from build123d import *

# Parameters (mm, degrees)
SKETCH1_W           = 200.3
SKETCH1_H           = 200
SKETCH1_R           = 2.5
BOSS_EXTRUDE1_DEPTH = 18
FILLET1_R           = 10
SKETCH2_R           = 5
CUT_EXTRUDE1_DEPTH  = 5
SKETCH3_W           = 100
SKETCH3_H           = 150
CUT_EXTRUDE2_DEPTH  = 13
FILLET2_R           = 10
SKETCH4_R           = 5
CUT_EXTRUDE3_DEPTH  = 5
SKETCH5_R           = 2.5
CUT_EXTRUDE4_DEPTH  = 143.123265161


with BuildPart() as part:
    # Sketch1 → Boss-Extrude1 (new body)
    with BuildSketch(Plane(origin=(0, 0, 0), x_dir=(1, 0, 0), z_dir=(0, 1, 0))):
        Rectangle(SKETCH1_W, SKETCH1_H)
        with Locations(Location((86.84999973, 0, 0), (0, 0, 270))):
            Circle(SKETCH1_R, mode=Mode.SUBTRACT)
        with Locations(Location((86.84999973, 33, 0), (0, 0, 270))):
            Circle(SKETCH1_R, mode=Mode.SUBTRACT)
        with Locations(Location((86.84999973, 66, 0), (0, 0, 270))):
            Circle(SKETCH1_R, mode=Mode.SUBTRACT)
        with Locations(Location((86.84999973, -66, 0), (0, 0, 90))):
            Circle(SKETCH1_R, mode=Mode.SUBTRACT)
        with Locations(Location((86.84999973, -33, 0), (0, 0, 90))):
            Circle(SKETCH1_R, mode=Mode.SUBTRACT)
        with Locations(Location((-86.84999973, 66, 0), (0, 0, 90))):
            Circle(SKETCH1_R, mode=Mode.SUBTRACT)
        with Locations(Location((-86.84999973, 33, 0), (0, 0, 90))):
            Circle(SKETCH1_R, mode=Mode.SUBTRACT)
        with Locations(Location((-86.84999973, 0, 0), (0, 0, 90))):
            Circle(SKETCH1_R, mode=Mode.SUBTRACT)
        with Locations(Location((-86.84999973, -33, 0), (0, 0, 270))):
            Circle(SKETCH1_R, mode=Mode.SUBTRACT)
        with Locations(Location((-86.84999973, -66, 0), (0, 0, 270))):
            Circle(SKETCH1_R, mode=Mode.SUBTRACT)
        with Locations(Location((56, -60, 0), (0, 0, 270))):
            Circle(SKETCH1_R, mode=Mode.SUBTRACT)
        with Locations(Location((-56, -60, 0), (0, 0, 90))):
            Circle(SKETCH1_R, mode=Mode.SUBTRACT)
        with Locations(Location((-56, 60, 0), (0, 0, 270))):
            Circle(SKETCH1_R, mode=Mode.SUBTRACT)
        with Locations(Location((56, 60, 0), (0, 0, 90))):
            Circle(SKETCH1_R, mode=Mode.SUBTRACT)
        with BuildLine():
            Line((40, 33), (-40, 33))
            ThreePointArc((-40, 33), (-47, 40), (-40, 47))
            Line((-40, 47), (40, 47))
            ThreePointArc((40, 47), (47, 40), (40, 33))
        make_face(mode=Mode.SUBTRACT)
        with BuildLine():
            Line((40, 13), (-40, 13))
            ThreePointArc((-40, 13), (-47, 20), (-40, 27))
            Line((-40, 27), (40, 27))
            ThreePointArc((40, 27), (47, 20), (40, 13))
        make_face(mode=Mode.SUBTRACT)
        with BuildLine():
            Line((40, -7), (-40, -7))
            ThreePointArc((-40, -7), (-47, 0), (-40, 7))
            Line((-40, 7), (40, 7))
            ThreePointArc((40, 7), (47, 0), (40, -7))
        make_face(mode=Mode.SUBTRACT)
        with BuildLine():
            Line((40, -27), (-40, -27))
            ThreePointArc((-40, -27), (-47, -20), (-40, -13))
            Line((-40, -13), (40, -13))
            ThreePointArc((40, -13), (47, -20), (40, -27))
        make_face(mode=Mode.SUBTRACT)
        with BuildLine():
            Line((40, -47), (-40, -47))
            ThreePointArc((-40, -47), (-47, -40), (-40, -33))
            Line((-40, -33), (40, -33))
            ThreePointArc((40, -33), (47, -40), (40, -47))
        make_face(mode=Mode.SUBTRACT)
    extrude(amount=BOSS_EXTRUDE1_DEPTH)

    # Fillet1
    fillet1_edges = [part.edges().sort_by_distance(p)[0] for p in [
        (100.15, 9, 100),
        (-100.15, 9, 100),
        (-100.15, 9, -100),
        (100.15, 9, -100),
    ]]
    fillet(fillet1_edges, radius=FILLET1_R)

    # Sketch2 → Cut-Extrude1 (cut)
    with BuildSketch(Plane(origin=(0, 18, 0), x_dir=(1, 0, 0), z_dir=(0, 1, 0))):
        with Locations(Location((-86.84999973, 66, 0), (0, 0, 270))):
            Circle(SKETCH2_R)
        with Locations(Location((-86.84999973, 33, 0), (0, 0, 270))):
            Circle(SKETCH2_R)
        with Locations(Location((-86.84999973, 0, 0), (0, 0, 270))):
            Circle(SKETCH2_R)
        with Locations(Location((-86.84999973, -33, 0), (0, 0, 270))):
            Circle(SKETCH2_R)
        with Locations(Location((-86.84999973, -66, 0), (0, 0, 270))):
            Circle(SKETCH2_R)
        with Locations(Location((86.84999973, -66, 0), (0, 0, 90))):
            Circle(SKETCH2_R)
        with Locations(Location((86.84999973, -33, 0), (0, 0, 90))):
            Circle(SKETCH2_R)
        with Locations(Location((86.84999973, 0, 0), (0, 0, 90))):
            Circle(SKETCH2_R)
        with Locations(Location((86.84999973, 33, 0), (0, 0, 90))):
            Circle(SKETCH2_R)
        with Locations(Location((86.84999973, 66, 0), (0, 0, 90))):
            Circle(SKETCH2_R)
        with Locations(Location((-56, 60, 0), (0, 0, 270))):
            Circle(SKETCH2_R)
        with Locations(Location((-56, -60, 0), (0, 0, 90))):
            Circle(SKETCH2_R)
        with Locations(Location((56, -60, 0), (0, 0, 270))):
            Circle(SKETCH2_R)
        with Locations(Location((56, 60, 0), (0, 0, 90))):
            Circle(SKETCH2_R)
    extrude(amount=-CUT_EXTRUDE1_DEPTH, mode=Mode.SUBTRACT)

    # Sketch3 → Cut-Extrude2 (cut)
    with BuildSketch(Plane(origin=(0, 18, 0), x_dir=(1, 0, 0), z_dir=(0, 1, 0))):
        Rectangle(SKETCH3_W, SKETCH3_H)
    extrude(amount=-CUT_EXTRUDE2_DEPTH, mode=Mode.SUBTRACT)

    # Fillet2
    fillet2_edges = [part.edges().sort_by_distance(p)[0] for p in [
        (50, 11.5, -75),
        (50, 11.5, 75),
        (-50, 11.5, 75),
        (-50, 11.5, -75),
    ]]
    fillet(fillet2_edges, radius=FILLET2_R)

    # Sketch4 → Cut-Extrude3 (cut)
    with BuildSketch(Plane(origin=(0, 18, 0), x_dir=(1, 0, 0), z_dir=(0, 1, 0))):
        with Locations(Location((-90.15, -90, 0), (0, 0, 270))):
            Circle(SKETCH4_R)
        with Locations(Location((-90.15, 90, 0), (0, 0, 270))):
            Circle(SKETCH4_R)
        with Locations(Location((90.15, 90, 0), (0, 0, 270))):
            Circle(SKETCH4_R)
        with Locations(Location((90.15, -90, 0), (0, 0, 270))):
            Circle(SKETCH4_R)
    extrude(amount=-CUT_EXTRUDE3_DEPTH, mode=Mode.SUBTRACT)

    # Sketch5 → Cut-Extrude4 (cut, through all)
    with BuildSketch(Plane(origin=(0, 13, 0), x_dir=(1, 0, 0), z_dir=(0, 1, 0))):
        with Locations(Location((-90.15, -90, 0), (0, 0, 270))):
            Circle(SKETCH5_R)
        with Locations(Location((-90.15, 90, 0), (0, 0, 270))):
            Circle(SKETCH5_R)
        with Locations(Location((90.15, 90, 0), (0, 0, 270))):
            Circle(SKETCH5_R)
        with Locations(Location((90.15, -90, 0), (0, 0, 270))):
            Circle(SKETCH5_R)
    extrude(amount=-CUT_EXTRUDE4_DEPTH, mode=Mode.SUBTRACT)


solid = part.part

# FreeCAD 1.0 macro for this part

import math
import FreeCAD as App
import Part
import Sketcher

V = App.Vector


def edges_at(feature, points):
    """Names of the edges that pass closest to the given points."""
    edges = feature.Shape.Edges
    near = lambda p: min(range(len(edges)), key=lambda i: edges[i].distToShape(Part.Vertex(*p))[0])
    return sorted({f"Edge{near(p) + 1}" for p in points})

doc = App.newDocument("Part")
body = doc.addObject("PartDesign::Body", "Body")

# Sketch on XZ plane
sketch1 = body.newObject("Sketcher::SketchObject", "Sketch")
sketch1.AttachmentSupport = (doc.getObject("XZ_Plane"), [""])
sketch1.MapMode = "FlatFace"
sketch1.addGeometry(Part.LineSegment(V(-100.15, -100, 0), V(-100.15, 100, 0)), False)
sketch1.addGeometry(Part.LineSegment(V(-100.15, 100, 0), V(100.15, 100, 0)), False)
sketch1.addGeometry(Part.LineSegment(V(100.15, 100, 0), V(100.15, -100, 0)), False)
sketch1.addGeometry(Part.LineSegment(V(100.15, -100, 0), V(-100.15, -100, 0)), False)
sketch1.addGeometry(Part.Circle(V(-86.85, 66, 0), V(0, 0, 1), 2.5), False)
sketch1.addGeometry(Part.Circle(V(-56, 60, 0), V(0, 0, 1), 2.5), False)
sketch1.addGeometry(Part.ArcOfCircle(Part.Circle(V(40, 40, 0), V(0, 0, 1), 7), math.radians(-90), math.radians(90)), False)
sketch1.addGeometry(Part.LineSegment(V(40, 47, 0), V(-40, 47, 0)), False)
sketch1.addGeometry(Part.ArcOfCircle(Part.Circle(V(-40, 40, 0), V(0, 0, 1), 7), math.radians(90), math.radians(270)), False)
sketch1.addGeometry(Part.LineSegment(V(-40, 33, 0), V(40, 33, 0)), False)
sketch1.addGeometry(Part.Circle(V(-86.85, 33, 0), V(0, 0, 1), 2.5), False)
sketch1.addGeometry(Part.ArcOfCircle(Part.Circle(V(40, 20, 0), V(0, 0, 1), 7), math.radians(-90), math.radians(90)), False)
sketch1.addGeometry(Part.LineSegment(V(40, 27, 0), V(-40, 27, 0)), False)
sketch1.addGeometry(Part.ArcOfCircle(Part.Circle(V(-40, 20, 0), V(0, 0, 1), 7), math.radians(90), math.radians(270)), False)
sketch1.addGeometry(Part.LineSegment(V(-40, 13, 0), V(40, 13, 0)), False)
sketch1.addGeometry(Part.Circle(V(56, 60, 0), V(0, 0, 1), 2.5), False)
sketch1.addGeometry(Part.Circle(V(86.85, 66, 0), V(0, 0, 1), 2.5), False)
sketch1.addGeometry(Part.Circle(V(86.85, 33, 0), V(0, 0, 1), 2.5), False)
sketch1.addGeometry(Part.Circle(V(-86.85, 0, 0), V(0, 0, 1), 2.5), False)
sketch1.addGeometry(Part.Circle(V(-86.85, -33, 0), V(0, 0, 1), 2.5), False)
sketch1.addGeometry(Part.ArcOfCircle(Part.Circle(V(40, 0, 0), V(0, 0, 1), 7), math.radians(-90), math.radians(90)), False)
sketch1.addGeometry(Part.LineSegment(V(40, 7, 0), V(-40, 7, 0)), False)
sketch1.addGeometry(Part.ArcOfCircle(Part.Circle(V(-40, 0, 0), V(0, 0, 1), 7), math.radians(90), math.radians(270)), False)
sketch1.addGeometry(Part.LineSegment(V(-40, -7, 0), V(40, -7, 0)), False)
sketch1.addGeometry(Part.ArcOfCircle(Part.Circle(V(40, -20, 0), V(0, 0, 1), 7), math.radians(-90), math.radians(90)), False)
sketch1.addGeometry(Part.LineSegment(V(40, -13, 0), V(-40, -13, 0)), False)
sketch1.addGeometry(Part.ArcOfCircle(Part.Circle(V(-40, -20, 0), V(0, 0, 1), 7), math.radians(90), math.radians(270)), False)
sketch1.addGeometry(Part.LineSegment(V(-40, -27, 0), V(40, -27, 0)), False)
sketch1.addGeometry(Part.Circle(V(-86.85, -66, 0), V(0, 0, 1), 2.5), False)
sketch1.addGeometry(Part.Circle(V(-56, -60, 0), V(0, 0, 1), 2.5), False)
sketch1.addGeometry(Part.ArcOfCircle(Part.Circle(V(40, -40, 0), V(0, 0, 1), 7), math.radians(-90), math.radians(90)), False)
sketch1.addGeometry(Part.LineSegment(V(40, -33, 0), V(-40, -33, 0)), False)
sketch1.addGeometry(Part.ArcOfCircle(Part.Circle(V(-40, -40, 0), V(0, 0, 1), 7), math.radians(90), math.radians(270)), False)
sketch1.addGeometry(Part.LineSegment(V(-40, -47, 0), V(40, -47, 0)), False)
sketch1.addGeometry(Part.Circle(V(86.85, 0, 0), V(0, 0, 1), 2.5), False)
sketch1.addGeometry(Part.Circle(V(86.85, -33, 0), V(0, 0, 1), 2.5), False)
sketch1.addGeometry(Part.Circle(V(56, -60, 0), V(0, 0, 1), 2.5), False)
sketch1.addGeometry(Part.Circle(V(86.85, -66, 0), V(0, 0, 1), 2.5), False)
sketch1.addConstraint(Sketcher.Constraint("Coincident", 0, 2, 1, 1))
sketch1.addConstraint(Sketcher.Constraint("Coincident", 1, 2, 2, 1))
sketch1.addConstraint(Sketcher.Constraint("Coincident", 2, 2, 3, 1))
sketch1.addConstraint(Sketcher.Constraint("Coincident", 3, 2, 0, 1))
sketch1.addConstraint(Sketcher.Constraint("Tangent", 6, 2, 7, 1))
sketch1.addConstraint(Sketcher.Constraint("Tangent", 7, 2, 8, 1))
sketch1.addConstraint(Sketcher.Constraint("Tangent", 8, 2, 9, 1))
sketch1.addConstraint(Sketcher.Constraint("Tangent", 9, 2, 6, 1))
sketch1.addConstraint(Sketcher.Constraint("Tangent", 11, 2, 12, 1))
sketch1.addConstraint(Sketcher.Constraint("Tangent", 12, 2, 13, 1))
sketch1.addConstraint(Sketcher.Constraint("Tangent", 13, 2, 14, 1))
sketch1.addConstraint(Sketcher.Constraint("Tangent", 14, 2, 11, 1))
sketch1.addConstraint(Sketcher.Constraint("Tangent", 20, 2, 21, 1))
sketch1.addConstraint(Sketcher.Constraint("Tangent", 21, 2, 22, 1))
sketch1.addConstraint(Sketcher.Constraint("Tangent", 22, 2, 23, 1))
sketch1.addConstraint(Sketcher.Constraint("Tangent", 23, 2, 20, 1))
sketch1.addConstraint(Sketcher.Constraint("Tangent", 24, 2, 25, 1))
sketch1.addConstraint(Sketcher.Constraint("Tangent", 25, 2, 26, 1))
sketch1.addConstraint(Sketcher.Constraint("Tangent", 26, 2, 27, 1))
sketch1.addConstraint(Sketcher.Constraint("Tangent", 27, 2, 24, 1))
sketch1.addConstraint(Sketcher.Constraint("Tangent", 30, 2, 31, 1))
sketch1.addConstraint(Sketcher.Constraint("Tangent", 31, 2, 32, 1))
sketch1.addConstraint(Sketcher.Constraint("Tangent", 32, 2, 33, 1))
sketch1.addConstraint(Sketcher.Constraint("Tangent", 33, 2, 30, 1))
sketch1.addConstraint(Sketcher.Constraint("Vertical", 0))
sketch1.addConstraint(Sketcher.Constraint("Horizontal", 1))
sketch1.addConstraint(Sketcher.Constraint("Vertical", 2))
sketch1.addConstraint(Sketcher.Constraint("Horizontal", 3))
sketch1.addConstraint(Sketcher.Constraint("Horizontal", 7))
sketch1.addConstraint(Sketcher.Constraint("Horizontal", 9))
sketch1.addConstraint(Sketcher.Constraint("Horizontal", 12))
sketch1.addConstraint(Sketcher.Constraint("Horizontal", 14))
sketch1.addConstraint(Sketcher.Constraint("Horizontal", 21))
sketch1.addConstraint(Sketcher.Constraint("Horizontal", 23))
sketch1.addConstraint(Sketcher.Constraint("Horizontal", 25))
sketch1.addConstraint(Sketcher.Constraint("Horizontal", 27))
sketch1.addConstraint(Sketcher.Constraint("Horizontal", 31))
sketch1.addConstraint(Sketcher.Constraint("Horizontal", 33))
sketch1.addConstraint(Sketcher.Constraint("Equal", 4, 5))
sketch1.addConstraint(Sketcher.Constraint("Equal", 5, 10))
sketch1.addConstraint(Sketcher.Constraint("Equal", 8, 11))
sketch1.addConstraint(Sketcher.Constraint("Equal", 10, 15))
sketch1.addConstraint(Sketcher.Constraint("Equal", 15, 16))
sketch1.addConstraint(Sketcher.Constraint("Equal", 16, 17))
sketch1.addConstraint(Sketcher.Constraint("Equal", 17, 18))
sketch1.addConstraint(Sketcher.Constraint("Equal", 18, 19))
sketch1.addConstraint(Sketcher.Constraint("Equal", 13, 20))
sketch1.addConstraint(Sketcher.Constraint("Equal", 22, 24))
sketch1.addConstraint(Sketcher.Constraint("Equal", 19, 28))
sketch1.addConstraint(Sketcher.Constraint("Equal", 28, 29))
sketch1.addConstraint(Sketcher.Constraint("Equal", 26, 30))
sketch1.addConstraint(Sketcher.Constraint("Equal", 29, 34))
sketch1.addConstraint(Sketcher.Constraint("Equal", 34, 35))
sketch1.addConstraint(Sketcher.Constraint("Equal", 35, 36))
sketch1.addConstraint(Sketcher.Constraint("Equal", 36, 37))
sketch1.addConstraint(Sketcher.Constraint("Symmetric", 17, 3, 19, 3, -1, 1))
sketch1.addConstraint(Sketcher.Constraint("Symmetric", 20, 3, 22, 3, -1, 1))
sketch1.addConstraint(Sketcher.Constraint("Symmetric", 13, 3, 24, 3, -1, 1))
sketch1.addConstraint(Sketcher.Constraint("Symmetric", 16, 3, 28, 3, -1, 1))
sketch1.addConstraint(Sketcher.Constraint("Symmetric", 15, 3, 29, 3, -1, 1))
sketch1.addConstraint(Sketcher.Constraint("Symmetric", 8, 3, 30, 3, -1, 1))
sketch1.addConstraint(Sketcher.Constraint("Symmetric", 18, 3, 34, 3, -1, 1))
sketch1.addConstraint(Sketcher.Constraint("Symmetric", 10, 3, 35, 3, -1, 1))
sketch1.addConstraint(Sketcher.Constraint("Symmetric", 5, 3, 36, 3, -1, 1))
sketch1.addConstraint(Sketcher.Constraint("Symmetric", 4, 3, 37, 3, -1, 1))
sketch1.addConstraint(Sketcher.Constraint("Symmetric", 0, 2, 2, 2, -1, 1))
sketch1.addConstraint(Sketcher.Constraint("Symmetric", 5, 3, 15, 3, -2))
sketch1.addConstraint(Sketcher.Constraint("Symmetric", 4, 3, 16, 3, -2))
sketch1.addConstraint(Sketcher.Constraint("Symmetric", 10, 3, 17, 3, -2))
sketch1.addConstraint(Sketcher.Constraint("PointOnObject", 18, 3, -1))
sketch1.addConstraint(Sketcher.Constraint("Horizontal", 17, 3, 8, 2))
sketch1.addConstraint(Sketcher.Constraint("Vertical", 4, 3, 10, 3))
sketch1.addConstraint(Sketcher.Constraint("Vertical", 6, 3, 11, 3))
sketch1.addConstraint(Sketcher.Constraint("Vertical", 8, 3, 13, 3))
sketch1.addConstraint(Sketcher.Constraint("Vertical", 10, 3, 18, 3))
sketch1.addConstraint(Sketcher.Constraint("Vertical", 11, 3, 20, 3))
sketch1.addConstraint(Sketcher.Constraint("Vertical", 13, 3, 22, 3))
sketch1.addConstraint(Sketcher.Constraint("Vertical", 22, 3, 26, 3))
sketch1.addConstraint(Sketcher.Constraint("Vertical", 26, 3, 32, 3))
sketch1.addConstraint(Sketcher.Constraint("Diameter", 4, 5.0))
sketch1.addConstraint(Sketcher.Constraint("Radius", 6, 7.0))
sketch1.addConstraint(Sketcher.Constraint("DistanceX", 7, 2, 7, 1, 80.0))
sketch1.addConstraint(Sketcher.Constraint("DistanceY", 0, 1, 0, 2, 200.0))
sketch1.addConstraint(Sketcher.Constraint("DistanceX", 1, 1, 1, 2, 200.3))
sketch1.addConstraint(Sketcher.Constraint("DistanceY", -1, 1, 4, 3, 66.0))
sketch1.addConstraint(Sketcher.Constraint("DistanceX", 5, 3, -1, 1, 56.0))
sketch1.addConstraint(Sketcher.Constraint("DistanceY", -1, 1, 5, 3, 60.0))
sketch1.addConstraint(Sketcher.Constraint("DistanceY", -1, 1, 6, 3, 40.0))
sketch1.addConstraint(Sketcher.Constraint("DistanceY", -1, 1, 11, 3, 20.0))
sketch1.addConstraint(Sketcher.Constraint("DistanceX", 0, 2, 4, 3, 13.3))
pad1 = body.newObject("PartDesign::Pad", "Pad")
pad1.Profile = sketch1
pad1.Length = 18
pad1.Reversed = True
doc.recompute()

fillet = body.newObject("PartDesign::Fillet", "Fillet")
fillet.Base = (pad1, edges_at(pad1, [
    (100.15, 9, 100),
    (-100.15, 9, 100),
    (-100.15, 9, -100),
    (100.15, 9, -100),
]))
fillet.Radius = 10

# Sketch on XZ plane
sketch2 = body.newObject("Sketcher::SketchObject", "Sketch001")
sketch2.AttachmentSupport = (doc.getObject("XZ_Plane"), [""])
sketch2.MapMode = "FlatFace"
sketch2.AttachmentOffset = App.Placement(V(0, 0, -18), App.Rotation())
sketch2.addGeometry(Part.Circle(V(-86.85, -66, 0), V(0, 0, 1), 5), False)
sketch2.addGeometry(Part.Circle(V(-86.85, -33, 0), V(0, 0, 1), 5), False)
sketch2.addGeometry(Part.Circle(V(-86.85, 0, 0), V(0, 0, 1), 5), False)
sketch2.addGeometry(Part.Circle(V(-86.85, 33, 0), V(0, 0, 1), 5), False)
sketch2.addGeometry(Part.Circle(V(-86.85, 66, 0), V(0, 0, 1), 5), False)
sketch2.addGeometry(Part.Circle(V(86.85, 66, 0), V(0, 0, 1), 5), False)
sketch2.addGeometry(Part.Circle(V(86.85, 33, 0), V(0, 0, 1), 5), False)
sketch2.addGeometry(Part.Circle(V(86.85, 0, 0), V(0, 0, 1), 5), False)
sketch2.addGeometry(Part.Circle(V(86.85, -33, 0), V(0, 0, 1), 5), False)
sketch2.addGeometry(Part.Circle(V(86.85, -66, 0), V(0, 0, 1), 5), False)
sketch2.addGeometry(Part.Circle(V(-56, -60, 0), V(0, 0, 1), 5), False)
sketch2.addGeometry(Part.Circle(V(-56, 60, 0), V(0, 0, 1), 5), False)
sketch2.addGeometry(Part.Circle(V(56, 60, 0), V(0, 0, 1), 5), False)
sketch2.addGeometry(Part.Circle(V(56, -60, 0), V(0, 0, 1), 5), False)
sketch2.addConstraint(Sketcher.Constraint("Equal", 0, 1))
sketch2.addConstraint(Sketcher.Constraint("Equal", 1, 2))
sketch2.addConstraint(Sketcher.Constraint("Equal", 2, 3))
sketch2.addConstraint(Sketcher.Constraint("Equal", 3, 4))
sketch2.addConstraint(Sketcher.Constraint("Equal", 4, 5))
sketch2.addConstraint(Sketcher.Constraint("Equal", 5, 6))
sketch2.addConstraint(Sketcher.Constraint("Equal", 6, 7))
sketch2.addConstraint(Sketcher.Constraint("Equal", 7, 8))
sketch2.addConstraint(Sketcher.Constraint("Equal", 8, 9))
sketch2.addConstraint(Sketcher.Constraint("Equal", 9, 10))
sketch2.addConstraint(Sketcher.Constraint("Equal", 10, 11))
sketch2.addConstraint(Sketcher.Constraint("Equal", 11, 12))
sketch2.addConstraint(Sketcher.Constraint("Equal", 12, 13))
sketch2.addConstraint(Sketcher.Constraint("Symmetric", 0, 3, 5, 3, -1, 1))
sketch2.addConstraint(Sketcher.Constraint("Symmetric", 1, 3, 6, 3, -1, 1))
sketch2.addConstraint(Sketcher.Constraint("Symmetric", 2, 3, 7, 3, -1, 1))
sketch2.addConstraint(Sketcher.Constraint("Symmetric", 3, 3, 8, 3, -1, 1))
sketch2.addConstraint(Sketcher.Constraint("Symmetric", 4, 3, 9, 3, -1, 1))
sketch2.addConstraint(Sketcher.Constraint("Symmetric", 10, 3, 12, 3, -1, 1))
sketch2.addConstraint(Sketcher.Constraint("Symmetric", 11, 3, 13, 3, -1, 1))
sketch2.addConstraint(Sketcher.Constraint("Symmetric", 4, 3, 5, 3, -2))
sketch2.addConstraint(Sketcher.Constraint("Symmetric", 3, 3, 6, 3, -2))
sketch2.addConstraint(Sketcher.Constraint("Symmetric", 11, 3, 12, 3, -2))
sketch2.addConstraint(Sketcher.Constraint("PointOnObject", 2, 3, -1))
sketch2.addConstraint(Sketcher.Constraint("Vertical", 0, 3, 1, 3))
sketch2.addConstraint(Sketcher.Constraint("Vertical", 1, 3, 2, 3))
sketch2.addConstraint(Sketcher.Constraint("Diameter", 0, 10.0))
sketch2.addConstraint(Sketcher.Constraint("DistanceY", 0, 3, -1, 1, 66.0))
sketch2.addConstraint(Sketcher.Constraint("DistanceY", 1, 3, -1, 1, 33.0))
sketch2.addConstraint(Sketcher.Constraint("DistanceX", 10, 3, -1, 1, 56.0))
sketch2.addConstraint(Sketcher.Constraint("DistanceY", 10, 3, -1, 1, 60.0))
sketch2.addConstraint(Sketcher.Constraint("DistanceX", 4, 3, 5, 3, 173.699999))
pocket1 = body.newObject("PartDesign::Pocket", "Pocket")
pocket1.Profile = sketch2
pocket1.Length = 5
pocket1.Reversed = True

# Sketch on XZ plane
sketch3 = body.newObject("Sketcher::SketchObject", "Sketch002")
sketch3.AttachmentSupport = (doc.getObject("XZ_Plane"), [""])
sketch3.MapMode = "FlatFace"
sketch3.AttachmentOffset = App.Placement(V(0, 0, -18), App.Rotation())
sketch3.addGeometry(Part.LineSegment(V(-50, -75, 0), V(-50, 75, 0)), False)
sketch3.addGeometry(Part.LineSegment(V(-50, 75, 0), V(50, 75, 0)), False)
sketch3.addGeometry(Part.LineSegment(V(50, 75, 0), V(50, -75, 0)), False)
sketch3.addGeometry(Part.LineSegment(V(50, -75, 0), V(-50, -75, 0)), False)
sketch3.addConstraint(Sketcher.Constraint("Coincident", 0, 2, 1, 1))
sketch3.addConstraint(Sketcher.Constraint("Coincident", 1, 2, 2, 1))
sketch3.addConstraint(Sketcher.Constraint("Coincident", 2, 2, 3, 1))
sketch3.addConstraint(Sketcher.Constraint("Coincident", 3, 2, 0, 1))
sketch3.addConstraint(Sketcher.Constraint("Vertical", 0))
sketch3.addConstraint(Sketcher.Constraint("Horizontal", 1))
sketch3.addConstraint(Sketcher.Constraint("Vertical", 2))
sketch3.addConstraint(Sketcher.Constraint("Horizontal", 3))
sketch3.addConstraint(Sketcher.Constraint("Symmetric", 0, 2, 2, 2, -1, 1))
sketch3.addConstraint(Sketcher.Constraint("DistanceX", 1, 1, 1, 2, 100.0))
sketch3.addConstraint(Sketcher.Constraint("DistanceY", 0, 1, 0, 2, 150.0))
pocket2 = body.newObject("PartDesign::Pocket", "Pocket001")
pocket2.Profile = sketch3
pocket2.Length = 13
pocket2.Reversed = True
doc.recompute()

fillet2 = body.newObject("PartDesign::Fillet", "Fillet001")
fillet2.Base = (pocket2, edges_at(pocket2, [
    (50, 11.5, -75),
    (50, 11.5, 75),
    (-50, 11.5, 75),
    (-50, 11.5, -75),
]))
fillet2.Radius = 10

# Sketch on XZ plane
sketch4 = body.newObject("Sketcher::SketchObject", "Sketch003")
sketch4.AttachmentSupport = (doc.getObject("XZ_Plane"), [""])
sketch4.MapMode = "FlatFace"
sketch4.AttachmentOffset = App.Placement(V(0, 0, -18), App.Rotation())
sketch4.addGeometry(Part.Circle(V(-90.15, 90, 0), V(0, 0, 1), 5), False)
sketch4.addGeometry(Part.Circle(V(-90.15, -90, 0), V(0, 0, 1), 5), False)
sketch4.addGeometry(Part.Circle(V(90.15, -90, 0), V(0, 0, 1), 5), False)
sketch4.addGeometry(Part.Circle(V(90.15, 90, 0), V(0, 0, 1), 5), False)
sketch4.addConstraint(Sketcher.Constraint("Equal", 0, 1))
sketch4.addConstraint(Sketcher.Constraint("Equal", 1, 2))
sketch4.addConstraint(Sketcher.Constraint("Equal", 2, 3))
sketch4.addConstraint(Sketcher.Constraint("Symmetric", 0, 3, 2, 3, -1, 1))
sketch4.addConstraint(Sketcher.Constraint("Symmetric", 1, 3, 3, 3, -1, 1))
sketch4.addConstraint(Sketcher.Constraint("Symmetric", 1, 3, 2, 3, -2))
sketch4.addConstraint(Sketcher.Constraint("Diameter", 0, 10.0))
sketch4.addConstraint(Sketcher.Constraint("DistanceY", -1, 1, 0, 3, 90.0))
sketch4.addConstraint(Sketcher.Constraint("DistanceX", 1, 3, 2, 3, 180.3))
pocket3 = body.newObject("PartDesign::Pocket", "Pocket002")
pocket3.Profile = sketch4
pocket3.Length = 5
pocket3.Reversed = True

# Sketch on XZ plane
sketch5 = body.newObject("Sketcher::SketchObject", "Sketch004")
sketch5.AttachmentSupport = (doc.getObject("XZ_Plane"), [""])
sketch5.MapMode = "FlatFace"
sketch5.AttachmentOffset = App.Placement(V(0, 0, -13), App.Rotation())
sketch5.addGeometry(Part.Circle(V(-90.15, 90, 0), V(0, 0, 1), 2.5), False)
sketch5.addGeometry(Part.Circle(V(-90.15, -90, 0), V(0, 0, 1), 2.5), False)
sketch5.addGeometry(Part.Circle(V(90.15, -90, 0), V(0, 0, 1), 2.5), False)
sketch5.addGeometry(Part.Circle(V(90.15, 90, 0), V(0, 0, 1), 2.5), False)
sketch5.addConstraint(Sketcher.Constraint("Equal", 0, 1))
sketch5.addConstraint(Sketcher.Constraint("Equal", 1, 2))
sketch5.addConstraint(Sketcher.Constraint("Equal", 2, 3))
sketch5.addConstraint(Sketcher.Constraint("Symmetric", 0, 3, 2, 3, -1, 1))
sketch5.addConstraint(Sketcher.Constraint("Symmetric", 1, 3, 3, 3, -1, 1))
sketch5.addConstraint(Sketcher.Constraint("Symmetric", 1, 3, 2, 3, -2))
sketch5.addConstraint(Sketcher.Constraint("Diameter", 0, 5.0))
sketch5.addConstraint(Sketcher.Constraint("DistanceY", -1, 1, 0, 3, 90.0))
sketch5.addConstraint(Sketcher.Constraint("DistanceX", 1, 3, 2, 3, 180.3))
pocket4 = body.newObject("PartDesign::Pocket", "Pocket003")
pocket4.Profile = sketch5
pocket4.Type = "ThroughAll"
pocket4.Reversed = True

doc.recompute()
